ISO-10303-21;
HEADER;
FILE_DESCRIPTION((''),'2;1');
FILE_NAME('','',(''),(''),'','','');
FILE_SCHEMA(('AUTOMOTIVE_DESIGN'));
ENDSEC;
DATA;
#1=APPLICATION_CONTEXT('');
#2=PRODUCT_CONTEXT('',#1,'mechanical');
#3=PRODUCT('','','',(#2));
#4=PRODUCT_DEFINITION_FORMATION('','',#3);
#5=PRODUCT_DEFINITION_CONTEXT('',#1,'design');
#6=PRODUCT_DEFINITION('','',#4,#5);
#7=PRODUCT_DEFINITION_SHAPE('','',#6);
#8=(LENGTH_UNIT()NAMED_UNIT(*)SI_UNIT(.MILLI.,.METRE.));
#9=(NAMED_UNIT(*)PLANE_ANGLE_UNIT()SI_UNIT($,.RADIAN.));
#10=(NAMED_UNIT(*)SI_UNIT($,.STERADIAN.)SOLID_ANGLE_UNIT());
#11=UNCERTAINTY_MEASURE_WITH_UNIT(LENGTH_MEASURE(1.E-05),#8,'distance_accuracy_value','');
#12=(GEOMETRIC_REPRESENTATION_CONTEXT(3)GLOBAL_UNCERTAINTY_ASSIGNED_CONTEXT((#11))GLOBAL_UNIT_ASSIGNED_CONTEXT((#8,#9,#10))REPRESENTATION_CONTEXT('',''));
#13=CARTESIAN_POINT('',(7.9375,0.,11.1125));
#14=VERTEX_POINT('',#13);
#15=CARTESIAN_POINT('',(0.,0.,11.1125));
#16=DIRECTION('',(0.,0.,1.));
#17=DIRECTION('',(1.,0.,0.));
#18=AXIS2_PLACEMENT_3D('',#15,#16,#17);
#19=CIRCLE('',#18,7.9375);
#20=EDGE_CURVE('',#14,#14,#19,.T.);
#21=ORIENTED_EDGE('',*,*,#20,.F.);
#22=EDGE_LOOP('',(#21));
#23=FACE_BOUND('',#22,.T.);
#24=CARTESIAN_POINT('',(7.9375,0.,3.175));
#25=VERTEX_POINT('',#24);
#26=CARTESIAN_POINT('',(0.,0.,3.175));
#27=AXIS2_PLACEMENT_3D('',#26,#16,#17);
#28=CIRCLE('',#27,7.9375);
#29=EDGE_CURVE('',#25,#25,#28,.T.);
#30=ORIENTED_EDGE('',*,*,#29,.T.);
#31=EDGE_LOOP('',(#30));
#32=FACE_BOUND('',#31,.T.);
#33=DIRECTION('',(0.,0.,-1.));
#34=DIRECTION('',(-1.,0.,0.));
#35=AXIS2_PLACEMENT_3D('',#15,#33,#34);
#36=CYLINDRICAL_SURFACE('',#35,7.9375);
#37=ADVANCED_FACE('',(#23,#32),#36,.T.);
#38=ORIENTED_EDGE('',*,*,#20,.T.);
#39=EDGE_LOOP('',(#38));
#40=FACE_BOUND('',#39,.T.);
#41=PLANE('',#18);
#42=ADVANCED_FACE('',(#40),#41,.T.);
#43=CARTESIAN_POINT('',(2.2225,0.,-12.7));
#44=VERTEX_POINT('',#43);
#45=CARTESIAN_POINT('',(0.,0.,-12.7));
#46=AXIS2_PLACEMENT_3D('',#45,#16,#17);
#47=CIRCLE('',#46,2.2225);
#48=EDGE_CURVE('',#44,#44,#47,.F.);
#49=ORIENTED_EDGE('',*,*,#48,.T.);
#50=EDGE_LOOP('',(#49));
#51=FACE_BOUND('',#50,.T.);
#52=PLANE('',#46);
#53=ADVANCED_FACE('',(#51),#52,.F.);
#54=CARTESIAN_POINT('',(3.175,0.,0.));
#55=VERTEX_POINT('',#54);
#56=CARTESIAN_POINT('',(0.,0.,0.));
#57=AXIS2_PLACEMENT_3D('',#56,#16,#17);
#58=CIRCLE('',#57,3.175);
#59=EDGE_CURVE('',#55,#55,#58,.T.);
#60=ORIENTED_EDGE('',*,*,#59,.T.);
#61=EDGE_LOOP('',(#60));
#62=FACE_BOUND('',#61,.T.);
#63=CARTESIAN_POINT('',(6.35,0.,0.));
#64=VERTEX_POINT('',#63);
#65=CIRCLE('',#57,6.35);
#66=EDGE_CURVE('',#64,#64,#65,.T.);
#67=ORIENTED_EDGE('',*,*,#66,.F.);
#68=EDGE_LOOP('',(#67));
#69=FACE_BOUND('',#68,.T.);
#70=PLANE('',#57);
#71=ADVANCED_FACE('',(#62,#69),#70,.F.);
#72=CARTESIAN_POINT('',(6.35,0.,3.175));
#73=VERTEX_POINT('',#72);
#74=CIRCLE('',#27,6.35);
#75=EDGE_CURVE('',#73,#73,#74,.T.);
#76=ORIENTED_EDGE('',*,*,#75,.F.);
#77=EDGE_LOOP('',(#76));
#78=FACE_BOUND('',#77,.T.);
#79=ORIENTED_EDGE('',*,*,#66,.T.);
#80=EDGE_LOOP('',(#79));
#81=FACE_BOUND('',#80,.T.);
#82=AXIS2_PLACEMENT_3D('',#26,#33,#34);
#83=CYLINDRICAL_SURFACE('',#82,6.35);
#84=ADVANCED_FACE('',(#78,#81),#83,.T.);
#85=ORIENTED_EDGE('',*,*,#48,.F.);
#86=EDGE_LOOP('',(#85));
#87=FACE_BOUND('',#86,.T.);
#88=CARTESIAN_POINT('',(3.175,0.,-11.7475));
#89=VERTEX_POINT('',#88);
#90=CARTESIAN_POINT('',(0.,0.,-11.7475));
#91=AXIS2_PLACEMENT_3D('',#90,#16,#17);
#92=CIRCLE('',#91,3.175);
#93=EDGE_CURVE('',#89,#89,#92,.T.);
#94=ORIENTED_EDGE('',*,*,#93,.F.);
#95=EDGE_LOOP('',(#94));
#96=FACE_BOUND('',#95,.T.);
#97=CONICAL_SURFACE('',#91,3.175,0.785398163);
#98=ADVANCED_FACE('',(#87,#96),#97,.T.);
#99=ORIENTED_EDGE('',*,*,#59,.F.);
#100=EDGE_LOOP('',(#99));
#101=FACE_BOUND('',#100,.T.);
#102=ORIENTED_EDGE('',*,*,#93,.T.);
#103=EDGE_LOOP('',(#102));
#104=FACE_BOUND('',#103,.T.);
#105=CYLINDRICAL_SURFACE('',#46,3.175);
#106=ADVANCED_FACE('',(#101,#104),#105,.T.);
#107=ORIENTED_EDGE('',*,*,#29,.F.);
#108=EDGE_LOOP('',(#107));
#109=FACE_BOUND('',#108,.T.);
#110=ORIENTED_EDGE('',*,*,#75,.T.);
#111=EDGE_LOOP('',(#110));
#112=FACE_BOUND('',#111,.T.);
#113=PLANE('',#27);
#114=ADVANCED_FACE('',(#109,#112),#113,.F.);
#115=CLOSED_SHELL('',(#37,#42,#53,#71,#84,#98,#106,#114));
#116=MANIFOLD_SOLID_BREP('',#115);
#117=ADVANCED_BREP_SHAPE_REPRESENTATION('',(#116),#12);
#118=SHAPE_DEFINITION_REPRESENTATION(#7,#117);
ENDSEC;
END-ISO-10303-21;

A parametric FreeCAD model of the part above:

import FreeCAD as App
import Part
import Sketcher

V = App.Vector
Q = App.Units.Quantity


def edges_at(feature, points):
    """Names of the edges that pass closest to the given points."""
    edges = feature.Shape.Edges
    near = lambda p: min(range(len(edges)), key=lambda i: edges[i].distToShape(Part.Vertex(*p))[0])
    return sorted({f"Edge{near(p) + 1}" for p in points})

doc = App.newDocument("Part")
body = doc.addObject("PartDesign::Body", "Body")

sketch1 = body.newObject("Sketcher::SketchObject", "Sketch")
sketch1.AttachmentSupport = (doc.getObject("XY_Plane"), [""])
sketch1.MapMode = "FlatFace"
sketch1.addGeometry(Part.Circle(V(0, 0, 0), V(0, 0, 1), 3.2), False)
sketch1.addConstraint([
    Sketcher.Constraint("Coincident", 0, 3, -1, 1),
    Sketcher.Constraint("Diameter", 0, Q("0.25 in")),
])
pad1 = body.newObject("PartDesign::Pad", "Pad")
pad1.Profile = sketch1
pad1.Length = Q("0.5 in")
pad1.Reversed = True
doc.recompute()

chamfer = body.newObject("PartDesign::Chamfer", "Chamfer")
chamfer.Base = (pad1, edges_at(pad1, [(-3.175, 0, -12.7)]))
chamfer.Size = Q("0.0375 in")

sketch2 = body.newObject("Sketcher::SketchObject", "Sketch001")
sketch2.AttachmentSupport = (doc.getObject("XY_Plane"), [""])
sketch2.MapMode = "FlatFace"
sketch2.addGeometry(Part.Circle(V(0, 0, 0), V(0, 0, 1), 6), False)
sketch2.addConstraint([
    Sketcher.Constraint("Coincident", 0, 3, -1, 1),
    Sketcher.Constraint("Diameter", 0, Q("0.5 in")),
])
pad2 = body.newObject("PartDesign::Pad", "Pad001")
pad2.Profile = sketch2
pad2.Length = Q("0.125 in")

sketch3 = body.newObject("Sketcher::SketchObject", "Sketch002")
sketch3.AttachmentSupport = (doc.getObject("XY_Plane"), [""])
sketch3.MapMode = "FlatFace"
sketch3.AttachmentOffset = App.Placement(V(0, 0, 0.125 * 25.4), App.Rotation())
sketch3.addGeometry(Part.Circle(V(0, 0, 0), V(0, 0, 1), 8), False)
sketch3.addConstraint([
    Sketcher.Constraint("Coincident", 0, 3, -1, 1),
    Sketcher.Constraint("Diameter", 0, Q("0.625 in")),
])
pad3 = body.newObject("PartDesign::Pad", "Pad002")
pad3.Profile = sketch3
pad3.Length = Q("0.3125 in")

doc.recompute()
